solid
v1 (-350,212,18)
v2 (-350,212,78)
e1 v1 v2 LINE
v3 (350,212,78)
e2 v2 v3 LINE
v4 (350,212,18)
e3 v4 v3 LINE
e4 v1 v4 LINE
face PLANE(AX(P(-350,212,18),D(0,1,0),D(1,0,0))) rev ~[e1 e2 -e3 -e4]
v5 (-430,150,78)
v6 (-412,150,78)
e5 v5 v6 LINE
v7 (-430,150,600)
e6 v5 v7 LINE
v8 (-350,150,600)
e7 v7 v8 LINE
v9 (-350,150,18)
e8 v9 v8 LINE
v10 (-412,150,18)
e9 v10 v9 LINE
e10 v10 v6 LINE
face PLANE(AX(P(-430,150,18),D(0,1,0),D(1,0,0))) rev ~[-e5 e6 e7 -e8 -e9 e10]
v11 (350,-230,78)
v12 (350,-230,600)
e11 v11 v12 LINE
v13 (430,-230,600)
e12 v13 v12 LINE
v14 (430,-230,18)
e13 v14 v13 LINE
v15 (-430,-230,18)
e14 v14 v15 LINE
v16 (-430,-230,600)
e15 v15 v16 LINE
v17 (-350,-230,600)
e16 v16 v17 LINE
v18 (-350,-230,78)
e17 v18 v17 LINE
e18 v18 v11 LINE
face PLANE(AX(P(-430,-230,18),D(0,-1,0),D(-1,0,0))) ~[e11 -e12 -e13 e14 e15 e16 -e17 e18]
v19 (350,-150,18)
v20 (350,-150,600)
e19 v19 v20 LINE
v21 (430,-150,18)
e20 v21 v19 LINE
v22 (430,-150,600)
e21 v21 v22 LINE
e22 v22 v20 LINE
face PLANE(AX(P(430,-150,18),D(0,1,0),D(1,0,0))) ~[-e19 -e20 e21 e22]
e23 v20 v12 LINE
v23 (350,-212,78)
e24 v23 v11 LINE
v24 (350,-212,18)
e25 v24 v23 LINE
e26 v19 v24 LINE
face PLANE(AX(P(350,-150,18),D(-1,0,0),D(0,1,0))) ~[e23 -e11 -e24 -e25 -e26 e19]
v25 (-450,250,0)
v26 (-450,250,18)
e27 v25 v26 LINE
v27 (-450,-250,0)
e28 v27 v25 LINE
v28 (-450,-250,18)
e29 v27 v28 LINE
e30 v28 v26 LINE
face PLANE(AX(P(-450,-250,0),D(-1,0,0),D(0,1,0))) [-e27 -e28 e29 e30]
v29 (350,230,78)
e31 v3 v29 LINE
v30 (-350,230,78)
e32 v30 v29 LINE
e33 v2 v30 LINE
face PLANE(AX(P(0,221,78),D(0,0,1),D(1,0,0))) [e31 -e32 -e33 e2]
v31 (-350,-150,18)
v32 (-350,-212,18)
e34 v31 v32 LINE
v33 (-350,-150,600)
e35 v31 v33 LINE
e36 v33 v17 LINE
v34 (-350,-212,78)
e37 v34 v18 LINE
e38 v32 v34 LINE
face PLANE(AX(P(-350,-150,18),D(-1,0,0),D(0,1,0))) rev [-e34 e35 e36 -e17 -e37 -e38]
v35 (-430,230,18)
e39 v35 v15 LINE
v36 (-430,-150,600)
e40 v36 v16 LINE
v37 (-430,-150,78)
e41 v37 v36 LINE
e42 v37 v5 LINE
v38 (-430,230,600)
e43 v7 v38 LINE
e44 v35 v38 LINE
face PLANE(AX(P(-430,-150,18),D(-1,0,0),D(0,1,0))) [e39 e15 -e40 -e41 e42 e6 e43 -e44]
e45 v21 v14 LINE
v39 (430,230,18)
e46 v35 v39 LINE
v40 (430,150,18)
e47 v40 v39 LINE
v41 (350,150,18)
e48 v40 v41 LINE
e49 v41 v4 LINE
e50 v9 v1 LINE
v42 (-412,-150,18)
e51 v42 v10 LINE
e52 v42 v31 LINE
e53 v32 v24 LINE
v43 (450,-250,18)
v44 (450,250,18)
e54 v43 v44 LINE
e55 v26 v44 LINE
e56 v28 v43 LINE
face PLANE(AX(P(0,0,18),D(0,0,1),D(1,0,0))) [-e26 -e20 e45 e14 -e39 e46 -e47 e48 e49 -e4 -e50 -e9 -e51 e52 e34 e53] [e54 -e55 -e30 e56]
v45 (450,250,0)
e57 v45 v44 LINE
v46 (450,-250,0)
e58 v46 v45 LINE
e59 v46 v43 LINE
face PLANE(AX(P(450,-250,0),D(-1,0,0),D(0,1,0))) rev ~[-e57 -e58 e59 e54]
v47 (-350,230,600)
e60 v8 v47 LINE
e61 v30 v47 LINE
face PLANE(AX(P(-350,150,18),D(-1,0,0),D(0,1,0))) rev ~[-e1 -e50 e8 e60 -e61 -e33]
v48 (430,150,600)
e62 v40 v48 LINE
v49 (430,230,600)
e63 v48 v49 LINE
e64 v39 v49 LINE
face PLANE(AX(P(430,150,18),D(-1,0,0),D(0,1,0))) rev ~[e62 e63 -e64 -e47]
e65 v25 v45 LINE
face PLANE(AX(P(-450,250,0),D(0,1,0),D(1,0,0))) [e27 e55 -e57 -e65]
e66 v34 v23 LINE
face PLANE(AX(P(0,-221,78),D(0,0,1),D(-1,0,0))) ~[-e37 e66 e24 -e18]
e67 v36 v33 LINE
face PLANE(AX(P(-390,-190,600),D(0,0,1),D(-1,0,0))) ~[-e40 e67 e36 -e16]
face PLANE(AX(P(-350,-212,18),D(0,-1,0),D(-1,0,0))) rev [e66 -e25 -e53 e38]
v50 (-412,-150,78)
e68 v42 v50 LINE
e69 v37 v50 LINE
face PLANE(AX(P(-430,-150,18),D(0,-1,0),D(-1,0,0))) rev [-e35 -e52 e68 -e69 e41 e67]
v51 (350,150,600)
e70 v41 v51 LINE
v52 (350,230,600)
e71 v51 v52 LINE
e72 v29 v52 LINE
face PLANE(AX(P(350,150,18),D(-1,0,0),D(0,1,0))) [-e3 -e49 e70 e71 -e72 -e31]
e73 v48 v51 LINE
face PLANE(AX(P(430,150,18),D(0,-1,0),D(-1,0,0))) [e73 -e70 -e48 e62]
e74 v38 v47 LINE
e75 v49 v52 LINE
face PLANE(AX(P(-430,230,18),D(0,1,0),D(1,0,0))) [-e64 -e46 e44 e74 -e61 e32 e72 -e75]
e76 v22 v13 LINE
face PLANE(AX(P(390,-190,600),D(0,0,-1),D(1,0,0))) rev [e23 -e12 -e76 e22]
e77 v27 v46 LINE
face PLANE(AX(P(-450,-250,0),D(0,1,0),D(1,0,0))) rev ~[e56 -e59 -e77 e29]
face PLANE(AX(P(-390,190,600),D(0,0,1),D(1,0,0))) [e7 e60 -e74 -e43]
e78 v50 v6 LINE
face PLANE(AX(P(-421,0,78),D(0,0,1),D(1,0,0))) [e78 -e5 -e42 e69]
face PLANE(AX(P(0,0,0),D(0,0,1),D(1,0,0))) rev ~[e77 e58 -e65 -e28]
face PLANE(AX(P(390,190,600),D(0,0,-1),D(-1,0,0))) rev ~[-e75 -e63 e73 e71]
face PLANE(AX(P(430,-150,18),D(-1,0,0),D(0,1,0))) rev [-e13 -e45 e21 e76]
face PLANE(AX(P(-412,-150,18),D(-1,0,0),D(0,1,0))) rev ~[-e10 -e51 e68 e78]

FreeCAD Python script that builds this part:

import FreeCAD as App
import Part
import Sketcher

V = App.Vector

doc = App.newDocument("Part")
body = doc.addObject("PartDesign::Body", "Body")

sketch1 = body.newObject("Sketcher::SketchObject", "Sketch")
sketch1.AttachmentSupport = (doc.getObject("XY_Plane"), [""])
sketch1.MapMode = "FlatFace"
sketch1.addGeometry([
    Part.LineSegment(V(-450, 250, 0), V(-450, -250, 0)),
    Part.LineSegment(V(-450, -250, 0), V(450, -250, 0)),
    Part.LineSegment(V(450, -250, 0), V(450, 250, 0)),
    Part.LineSegment(V(450, 250, 0), V(-450, 250, 0)),
], False)
sketch1.addConstraint([
    Sketcher.Constraint("Coincident", 0, 2, 1, 1),
    Sketcher.Constraint("Coincident", 1, 2, 2, 1),
    Sketcher.Constraint("Coincident", 2, 2, 3, 1),
    Sketcher.Constraint("Coincident", 3, 2, 0, 1),
    Sketcher.Constraint("Vertical", 0),
    Sketcher.Constraint("Horizontal", 1),
    Sketcher.Constraint("Vertical", 2),
    Sketcher.Constraint("Horizontal", 3),
    Sketcher.Constraint("Symmetric", 0, 2, 2, 2, -1, 1),
    Sketcher.Constraint("DistanceX", 1, 1, 1, 2, 900.0),
    Sketcher.Constraint("DistanceY", 0, 2, 0, 1, 500.0),
])
pad1 = body.newObject("PartDesign::Pad", "Pad")
pad1.Profile = sketch1
pad1.Length = 18

sketch2 = body.newObject("Sketcher::SketchObject", "Sketch001")
sketch2.AttachmentSupport = (doc.getObject("XY_Plane"), [""])
sketch2.MapMode = "FlatFace"
sketch2.AttachmentOffset = App.Placement(V(0, 0, 18), App.Rotation())
sketch2.addGeometry([
    Part.LineSegment(V(-430, 230, 0), V(-430, 150, 0)),
    Part.LineSegment(V(-430, 150, 0), V(-350, 150, 0)),
    Part.LineSegment(V(-350, 150, 0), V(-350, 230, 0)),
    Part.LineSegment(V(-350, 230, 0), V(-430, 230, 0)),
], False)
sketch2.addConstraint([
    Sketcher.Constraint("Coincident", 0, 2, 1, 1),
    Sketcher.Constraint("Coincident", 1, 2, 2, 1),
    Sketcher.Constraint("Coincident", 2, 2, 3, 1),
    Sketcher.Constraint("Coincident", 3, 2, 0, 1),
    Sketcher.Constraint("Vertical", 0),
    Sketcher.Constraint("Horizontal", 1),
    Sketcher.Constraint("Vertical", 2),
    Sketcher.Constraint("Horizontal", 3),
    Sketcher.Constraint("Equal", 3, 0),
    Sketcher.Constraint("DistanceX", 1, 1, 1, 2, 80.0),
    Sketcher.Constraint("DistanceX", 0, 2, -1, 1, 430.0),
    Sketcher.Constraint("DistanceY", -1, 1, 0, 2, 150.0),
])
pad2 = body.newObject("PartDesign::Pad", "Pad001")
pad2.Profile = sketch2
pad2.Length = 582

sketch3 = body.newObject("Sketcher::SketchObject", "Sketch002")
sketch3.AttachmentSupport = (doc.getObject("XY_Plane"), [""])
sketch3.MapMode = "FlatFace"
sketch3.AttachmentOffset = App.Placement(V(0, 0, 18), App.Rotation())
sketch3.addGeometry([
    Part.LineSegment(V(430, 230, 0), V(430, 150, 0)),
    Part.LineSegment(V(430, 150, 0), V(350, 150, 0)),
    Part.LineSegment(V(350, 150, 0), V(350, 230, 0)),
    Part.LineSegment(V(350, 230, 0), V(430, 230, 0)),
], False)
sketch3.addConstraint([
    Sketcher.Constraint("Coincident", 0, 2, 1, 1),
    Sketcher.Constraint("Coincident", 1, 2, 2, 1),
    Sketcher.Constraint("Coincident", 2, 2, 3, 1),
    Sketcher.Constraint("Coincident", 3, 2, 0, 1),
    Sketcher.Constraint("Vertical", 0),
    Sketcher.Constraint("Horizontal", 1),
    Sketcher.Constraint("Vertical", 2),
    Sketcher.Constraint("Horizontal", 3),
    Sketcher.Constraint("Equal", 3, 0),
    Sketcher.Constraint("DistanceX", 1, 2, 1, 1, 80.0),
    Sketcher.Constraint("DistanceX", -1, 1, 0, 2, 430.0),
    Sketcher.Constraint("DistanceY", -1, 1, 0, 2, 150.0),
])
pad3 = body.newObject("PartDesign::Pad", "Pad002")
pad3.Profile = sketch3
pad3.Length = 582
doc.recompute()

mirrored = body.newObject("PartDesign::Mirrored", "Mirrored")
mirrored.Originals = [pad2, pad3]
mirrored.MirrorPlane = (doc.getObject("XZ_Plane"), [""])
body.Tip = mirrored

sketch4 = body.newObject("Sketcher::SketchObject", "Sketch003")
sketch4.AttachmentSupport = (doc.getObject("XY_Plane"), [""])
sketch4.MapMode = "FlatFace"
sketch4.AttachmentOffset = App.Placement(V(0, 0, 18), App.Rotation())
sketch4.addGeometry([
    Part.LineSegment(V(-350, 230, 0), V(-350, 212, 0)),
    Part.LineSegment(V(-350, 212, 0), V(350, 212, 0)),
    Part.LineSegment(V(350, 212, 0), V(350, 230, 0)),
    Part.LineSegment(V(350, 230, 0), V(-350, 230, 0)),
], False)
sketch4.addConstraint([
    Sketcher.Constraint("Coincident", 0, 2, 1, 1),
    Sketcher.Constraint("Coincident", 1, 2, 2, 1),
    Sketcher.Constraint("Coincident", 2, 2, 3, 1),
    Sketcher.Constraint("Coincident", 3, 2, 0, 1),
    Sketcher.Constraint("Vertical", 0),
    Sketcher.Constraint("Horizontal", 1),
    Sketcher.Constraint("Vertical", 2),
    Sketcher.Constraint("Horizontal", 3),
    Sketcher.Constraint("DistanceX", 1, 1, 1, 2, 700.0),
    Sketcher.Constraint("DistanceY", 0, 2, 0, 1, 18.0),
    Sketcher.Constraint("DistanceX", 0, 2, -1, 1, 350.0),
    Sketcher.Constraint("DistanceY", -1, 1, 0, 2, 212.0),
])
pad4 = body.newObject("PartDesign::Pad", "Pad003")
pad4.Profile = sketch4
pad4.Length = 60

sketch5 = body.newObject("Sketcher::SketchObject", "Sketch004")
sketch5.AttachmentSupport = (doc.getObject("XY_Plane"), [""])
sketch5.MapMode = "FlatFace"
sketch5.AttachmentOffset = App.Placement(V(0, 0, 18), App.Rotation())
sketch5.addGeometry([
    Part.LineSegment(V(-430, 150, 0), V(-430, -150, 0)),
    Part.LineSegment(V(-430, -150, 0), V(-412, -150, 0)),
    Part.LineSegment(V(-412, -150, 0), V(-412, 150, 0)),
    Part.LineSegment(V(-412, 150, 0), V(-430, 150, 0)),
], False)
sketch5.addConstraint([
    Sketcher.Constraint("Coincident", 0, 2, 1, 1),
    Sketcher.Constraint("Coincident", 1, 2, 2, 1),
    Sketcher.Constraint("Coincident", 2, 2, 3, 1),
    Sketcher.Constraint("Coincident", 3, 2, 0, 1),
    Sketcher.Constraint("Vertical", 0),
    Sketcher.Constraint("Horizontal", 1),
    Sketcher.Constraint("Vertical", 2),
    Sketcher.Constraint("Horizontal", 3),
    Sketcher.Constraint("DistanceX", 1, 1, 1, 2, 18.0),
    Sketcher.Constraint("DistanceY", 0, 2, 0, 1, 300.0),
    Sketcher.Constraint("DistanceX", 0, 2, -1, 1, 430.0),
    Sketcher.Constraint("DistanceY", 0, 2, -1, 1, 150.0),
])
pad5 = body.newObject("PartDesign::Pad", "Pad004")
pad5.Profile = sketch5
pad5.Length = 60
doc.recompute()

mirrored2 = body.newObject("PartDesign::Mirrored", "Mirrored001")
mirrored2.Originals = [pad4]
mirrored2.MirrorPlane = (doc.getObject("XZ_Plane"), [""])
body.Tip = mirrored2

doc.recompute()
